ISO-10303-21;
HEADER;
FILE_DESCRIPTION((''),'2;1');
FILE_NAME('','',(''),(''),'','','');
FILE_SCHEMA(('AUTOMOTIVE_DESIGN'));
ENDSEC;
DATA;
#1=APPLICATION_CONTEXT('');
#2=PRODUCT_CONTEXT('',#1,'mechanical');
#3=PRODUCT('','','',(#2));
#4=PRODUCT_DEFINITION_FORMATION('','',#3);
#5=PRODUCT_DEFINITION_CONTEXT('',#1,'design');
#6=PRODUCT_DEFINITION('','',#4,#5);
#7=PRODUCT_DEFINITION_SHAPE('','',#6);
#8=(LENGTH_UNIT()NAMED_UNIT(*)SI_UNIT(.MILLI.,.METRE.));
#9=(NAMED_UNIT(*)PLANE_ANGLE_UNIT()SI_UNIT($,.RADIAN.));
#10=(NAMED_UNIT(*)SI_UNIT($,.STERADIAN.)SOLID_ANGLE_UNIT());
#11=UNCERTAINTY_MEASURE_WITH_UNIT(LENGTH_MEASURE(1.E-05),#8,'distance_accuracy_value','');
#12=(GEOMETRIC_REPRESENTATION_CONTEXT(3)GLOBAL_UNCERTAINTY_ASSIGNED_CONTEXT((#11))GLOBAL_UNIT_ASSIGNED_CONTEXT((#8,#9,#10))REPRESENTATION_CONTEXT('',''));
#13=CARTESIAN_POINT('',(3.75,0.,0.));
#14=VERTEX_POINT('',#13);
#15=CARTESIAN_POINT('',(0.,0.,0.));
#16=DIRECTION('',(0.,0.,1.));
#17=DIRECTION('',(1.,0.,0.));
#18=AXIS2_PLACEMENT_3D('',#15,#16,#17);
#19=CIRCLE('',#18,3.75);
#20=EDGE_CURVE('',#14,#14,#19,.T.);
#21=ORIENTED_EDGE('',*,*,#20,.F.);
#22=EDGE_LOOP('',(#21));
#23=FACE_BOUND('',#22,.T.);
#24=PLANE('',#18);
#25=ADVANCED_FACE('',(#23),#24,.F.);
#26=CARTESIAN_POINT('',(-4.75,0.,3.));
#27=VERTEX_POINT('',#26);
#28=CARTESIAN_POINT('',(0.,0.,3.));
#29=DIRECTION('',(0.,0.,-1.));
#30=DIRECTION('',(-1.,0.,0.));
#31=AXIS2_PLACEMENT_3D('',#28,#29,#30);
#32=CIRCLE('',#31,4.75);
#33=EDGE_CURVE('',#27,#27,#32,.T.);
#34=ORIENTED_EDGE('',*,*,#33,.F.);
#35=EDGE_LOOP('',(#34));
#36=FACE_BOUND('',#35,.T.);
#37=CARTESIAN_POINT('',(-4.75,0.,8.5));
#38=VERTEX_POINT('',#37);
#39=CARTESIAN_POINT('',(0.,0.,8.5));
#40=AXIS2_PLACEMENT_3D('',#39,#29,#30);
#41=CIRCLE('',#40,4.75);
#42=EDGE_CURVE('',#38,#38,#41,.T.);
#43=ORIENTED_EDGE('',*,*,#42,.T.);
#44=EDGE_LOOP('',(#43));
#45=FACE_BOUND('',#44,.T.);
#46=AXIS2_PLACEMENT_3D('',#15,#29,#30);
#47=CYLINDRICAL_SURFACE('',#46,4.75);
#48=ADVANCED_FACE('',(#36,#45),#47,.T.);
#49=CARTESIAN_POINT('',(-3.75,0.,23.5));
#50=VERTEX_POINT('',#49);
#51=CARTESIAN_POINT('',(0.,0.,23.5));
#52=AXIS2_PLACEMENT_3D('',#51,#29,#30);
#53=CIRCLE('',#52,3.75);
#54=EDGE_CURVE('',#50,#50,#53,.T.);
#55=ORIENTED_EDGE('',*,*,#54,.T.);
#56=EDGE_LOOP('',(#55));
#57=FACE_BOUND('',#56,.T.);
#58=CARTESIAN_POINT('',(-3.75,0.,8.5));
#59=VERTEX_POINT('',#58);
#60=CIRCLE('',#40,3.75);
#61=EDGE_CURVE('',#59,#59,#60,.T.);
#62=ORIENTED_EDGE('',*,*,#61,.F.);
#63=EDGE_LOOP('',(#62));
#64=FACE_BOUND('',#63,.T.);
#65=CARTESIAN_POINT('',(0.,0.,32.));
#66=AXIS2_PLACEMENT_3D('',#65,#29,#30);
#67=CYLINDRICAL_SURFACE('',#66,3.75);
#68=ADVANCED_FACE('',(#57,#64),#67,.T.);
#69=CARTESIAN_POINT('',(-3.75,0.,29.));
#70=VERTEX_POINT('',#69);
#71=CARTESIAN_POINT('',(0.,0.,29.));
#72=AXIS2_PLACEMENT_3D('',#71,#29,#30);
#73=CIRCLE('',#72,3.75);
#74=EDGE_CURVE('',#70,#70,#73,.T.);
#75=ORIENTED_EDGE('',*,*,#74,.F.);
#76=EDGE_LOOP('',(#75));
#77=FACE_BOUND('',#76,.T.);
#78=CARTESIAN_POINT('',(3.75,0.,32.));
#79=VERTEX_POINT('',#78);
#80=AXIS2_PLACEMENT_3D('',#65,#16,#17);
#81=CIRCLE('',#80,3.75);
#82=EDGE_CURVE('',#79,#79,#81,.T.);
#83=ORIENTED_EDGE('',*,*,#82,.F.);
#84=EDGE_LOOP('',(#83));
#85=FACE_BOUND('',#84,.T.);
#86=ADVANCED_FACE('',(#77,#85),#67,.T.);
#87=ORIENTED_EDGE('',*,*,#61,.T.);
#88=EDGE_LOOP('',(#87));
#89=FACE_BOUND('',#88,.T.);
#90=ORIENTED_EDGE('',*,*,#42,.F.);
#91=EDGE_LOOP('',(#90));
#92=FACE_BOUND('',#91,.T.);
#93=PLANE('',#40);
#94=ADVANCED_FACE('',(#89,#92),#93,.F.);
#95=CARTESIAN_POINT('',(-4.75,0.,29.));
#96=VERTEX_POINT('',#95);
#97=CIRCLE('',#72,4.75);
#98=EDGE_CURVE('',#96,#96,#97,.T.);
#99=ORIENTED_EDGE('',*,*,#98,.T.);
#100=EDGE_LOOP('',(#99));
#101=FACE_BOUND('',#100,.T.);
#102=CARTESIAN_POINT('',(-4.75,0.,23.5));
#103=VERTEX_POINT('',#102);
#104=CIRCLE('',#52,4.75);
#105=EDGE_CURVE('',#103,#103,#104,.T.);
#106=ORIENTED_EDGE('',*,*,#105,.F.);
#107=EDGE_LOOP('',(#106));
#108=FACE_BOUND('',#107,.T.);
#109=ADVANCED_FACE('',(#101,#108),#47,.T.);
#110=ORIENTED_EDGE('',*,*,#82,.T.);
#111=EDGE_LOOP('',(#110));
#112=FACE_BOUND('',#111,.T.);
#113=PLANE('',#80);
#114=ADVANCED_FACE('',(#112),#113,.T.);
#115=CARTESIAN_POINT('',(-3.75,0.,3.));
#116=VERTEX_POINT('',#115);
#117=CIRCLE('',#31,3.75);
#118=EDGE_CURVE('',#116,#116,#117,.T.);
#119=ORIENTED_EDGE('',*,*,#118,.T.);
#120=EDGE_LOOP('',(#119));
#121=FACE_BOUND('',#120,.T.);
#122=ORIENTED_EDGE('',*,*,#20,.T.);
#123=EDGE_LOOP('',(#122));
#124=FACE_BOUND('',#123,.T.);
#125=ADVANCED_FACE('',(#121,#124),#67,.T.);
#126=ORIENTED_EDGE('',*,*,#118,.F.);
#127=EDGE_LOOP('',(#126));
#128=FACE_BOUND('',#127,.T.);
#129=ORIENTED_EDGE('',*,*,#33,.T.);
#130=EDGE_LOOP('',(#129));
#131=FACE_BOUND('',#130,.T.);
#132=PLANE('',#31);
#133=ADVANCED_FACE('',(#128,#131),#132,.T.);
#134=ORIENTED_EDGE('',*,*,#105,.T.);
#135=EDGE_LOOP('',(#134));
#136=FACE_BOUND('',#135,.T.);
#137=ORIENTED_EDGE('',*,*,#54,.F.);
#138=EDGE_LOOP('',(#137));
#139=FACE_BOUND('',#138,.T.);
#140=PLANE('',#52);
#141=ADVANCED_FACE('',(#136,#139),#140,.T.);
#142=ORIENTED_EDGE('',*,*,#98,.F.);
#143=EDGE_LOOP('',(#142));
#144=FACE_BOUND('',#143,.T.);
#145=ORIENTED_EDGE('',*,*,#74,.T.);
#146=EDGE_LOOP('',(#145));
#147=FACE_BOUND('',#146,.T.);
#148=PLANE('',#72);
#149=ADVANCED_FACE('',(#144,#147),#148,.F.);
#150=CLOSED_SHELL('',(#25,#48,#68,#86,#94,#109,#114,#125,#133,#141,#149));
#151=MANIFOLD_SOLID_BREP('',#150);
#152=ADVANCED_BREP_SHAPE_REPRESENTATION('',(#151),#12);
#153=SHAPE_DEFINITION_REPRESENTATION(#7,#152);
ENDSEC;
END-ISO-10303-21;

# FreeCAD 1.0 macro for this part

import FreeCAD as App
import Part
import Sketcher

doc = App.newDocument("Part")
params = doc.addObject("Spreadsheet::Sheet", "Params")
for row, (alias, value) in enumerate([
    ("sketch1_diameter", "7.5 mm"),
    ("pad1_length", "32 mm"),
    ("sketch2_width", "1 mm"),
    ("sketch2_height", "5.5 mm"),
    ("revolution_angle", "360 deg"),
], start=1):
    params.set(f"A{row}", alias)
    params.set(f"B{row}", "=" + value)
    params.setAlias(f"B{row}", alias)

body = doc.addObject("PartDesign::Body", "Body")

# Sketch on XY plane
sketch1 = body.newObject("Sketcher::SketchObject", "Sketch")
sketch1.AttachmentSupport = (doc.getObject("XY_Plane"), [""])
sketch1.MapMode = "FlatFace"
sketch1.addGeometry(Part.Circle(App.Vector(0, 0, 0), App.Vector(0, 0, 1), 3.8), False)
sketch1.addConstraint(Sketcher.Constraint("Coincident", 0, 3, -1, 1))
sketch1.addConstraint(Sketcher.Constraint("Diameter", 0, 7.5))
sketch1.setExpression("Constraints[1]", "Params.sketch1_diameter")
pad1 = body.newObject("PartDesign::Pad", "Pad")
pad1.Profile = sketch1
pad1.setExpression("Length", "Params.pad1_length")

# Sketch on XZ plane
sketch2 = body.newObject("Sketcher::SketchObject", "Sketch001")
sketch2.AttachmentSupport = (doc.getObject("XZ_Plane"), [""])
sketch2.MapMode = "FlatFace"
sketch2.addGeometry(Part.LineSegment(App.Vector(3.8, 23.5, 0), App.Vector(3.8, 29, 0)), False)
sketch2.addGeometry(Part.LineSegment(App.Vector(3.8, 29, 0), App.Vector(4.8, 29, 0)), False)
sketch2.addGeometry(Part.LineSegment(App.Vector(4.8, 29, 0), App.Vector(4.8, 23.5, 0)), False)
sketch2.addGeometry(Part.LineSegment(App.Vector(4.8, 23.5, 0), App.Vector(3.8, 23.5, 0)), False)
sketch2.addGeometry(Part.LineSegment(App.Vector(3.8, 3, 0), App.Vector(3.8, 8.5, 0)), False)
sketch2.addGeometry(Part.LineSegment(App.Vector(3.8, 8.5, 0), App.Vector(4.8, 8.5, 0)), False)
sketch2.addGeometry(Part.LineSegment(App.Vector(4.8, 8.5, 0), App.Vector(4.8, 3, 0)), False)
sketch2.addGeometry(Part.LineSegment(App.Vector(4.8, 3, 0), App.Vector(3.8, 3, 0)), False)
sketch2.addConstraint(Sketcher.Constraint("Coincident", 0, 2, 1, 1))
sketch2.addConstraint(Sketcher.Constraint("Coincident", 1, 2, 2, 1))
sketch2.addConstraint(Sketcher.Constraint("Coincident", 2, 2, 3, 1))
sketch2.addConstraint(Sketcher.Constraint("Coincident", 3, 2, 0, 1))
sketch2.addConstraint(Sketcher.Constraint("Coincident", 4, 2, 5, 1))
sketch2.addConstraint(Sketcher.Constraint("Coincident", 5, 2, 6, 1))
sketch2.addConstraint(Sketcher.Constraint("Coincident", 6, 2, 7, 1))
sketch2.addConstraint(Sketcher.Constraint("Coincident", 7, 2, 4, 1))
sketch2.addConstraint(Sketcher.Constraint("Vertical", 0))
sketch2.addConstraint(Sketcher.Constraint("Horizontal", 1))
sketch2.addConstraint(Sketcher.Constraint("Vertical", 2))
sketch2.addConstraint(Sketcher.Constraint("Horizontal", 3))
sketch2.addConstraint(Sketcher.Constraint("Vertical", 4))
sketch2.addConstraint(Sketcher.Constraint("Horizontal", 5))
sketch2.addConstraint(Sketcher.Constraint("Vertical", 6))
sketch2.addConstraint(Sketcher.Constraint("Horizontal", 7))
sketch2.addConstraint(Sketcher.Constraint("Vertical", 3, 2, 4, 2))
sketch2.addConstraint(Sketcher.Constraint("Vertical", 2, 2, 5, 2))
sketch2.addConstraint(Sketcher.Constraint("Equal", 2, 4))
sketch2.addConstraint(Sketcher.Constraint("DistanceX", 1, 1, 1, 2, 1.0))
sketch2.addConstraint(Sketcher.Constraint("DistanceY", 0, 1, 0, 2, 5.5))
sketch2.addConstraint(Sketcher.Constraint("DistanceY", -1, 1, 0, 2, 29.0))
sketch2.addConstraint(Sketcher.Constraint("DistanceY", -1, 1, 6, 2, 3.0))
sketch2.addConstraint(Sketcher.Constraint("DistanceX", -1, 1, 0, 2, 3.75))
sketch2.setExpression("Constraints[19]", "Params.sketch2_width")
sketch2.setExpression("Constraints[20]", "Params.sketch2_height")
revolution = body.newObject("PartDesign::Revolution", "Revolution")
revolution.Profile = sketch2
revolution.ReferenceAxis = (sketch2, ["V_Axis"])
revolution.setExpression("Angle", "Params.revolution_angle")

doc.recompute()
